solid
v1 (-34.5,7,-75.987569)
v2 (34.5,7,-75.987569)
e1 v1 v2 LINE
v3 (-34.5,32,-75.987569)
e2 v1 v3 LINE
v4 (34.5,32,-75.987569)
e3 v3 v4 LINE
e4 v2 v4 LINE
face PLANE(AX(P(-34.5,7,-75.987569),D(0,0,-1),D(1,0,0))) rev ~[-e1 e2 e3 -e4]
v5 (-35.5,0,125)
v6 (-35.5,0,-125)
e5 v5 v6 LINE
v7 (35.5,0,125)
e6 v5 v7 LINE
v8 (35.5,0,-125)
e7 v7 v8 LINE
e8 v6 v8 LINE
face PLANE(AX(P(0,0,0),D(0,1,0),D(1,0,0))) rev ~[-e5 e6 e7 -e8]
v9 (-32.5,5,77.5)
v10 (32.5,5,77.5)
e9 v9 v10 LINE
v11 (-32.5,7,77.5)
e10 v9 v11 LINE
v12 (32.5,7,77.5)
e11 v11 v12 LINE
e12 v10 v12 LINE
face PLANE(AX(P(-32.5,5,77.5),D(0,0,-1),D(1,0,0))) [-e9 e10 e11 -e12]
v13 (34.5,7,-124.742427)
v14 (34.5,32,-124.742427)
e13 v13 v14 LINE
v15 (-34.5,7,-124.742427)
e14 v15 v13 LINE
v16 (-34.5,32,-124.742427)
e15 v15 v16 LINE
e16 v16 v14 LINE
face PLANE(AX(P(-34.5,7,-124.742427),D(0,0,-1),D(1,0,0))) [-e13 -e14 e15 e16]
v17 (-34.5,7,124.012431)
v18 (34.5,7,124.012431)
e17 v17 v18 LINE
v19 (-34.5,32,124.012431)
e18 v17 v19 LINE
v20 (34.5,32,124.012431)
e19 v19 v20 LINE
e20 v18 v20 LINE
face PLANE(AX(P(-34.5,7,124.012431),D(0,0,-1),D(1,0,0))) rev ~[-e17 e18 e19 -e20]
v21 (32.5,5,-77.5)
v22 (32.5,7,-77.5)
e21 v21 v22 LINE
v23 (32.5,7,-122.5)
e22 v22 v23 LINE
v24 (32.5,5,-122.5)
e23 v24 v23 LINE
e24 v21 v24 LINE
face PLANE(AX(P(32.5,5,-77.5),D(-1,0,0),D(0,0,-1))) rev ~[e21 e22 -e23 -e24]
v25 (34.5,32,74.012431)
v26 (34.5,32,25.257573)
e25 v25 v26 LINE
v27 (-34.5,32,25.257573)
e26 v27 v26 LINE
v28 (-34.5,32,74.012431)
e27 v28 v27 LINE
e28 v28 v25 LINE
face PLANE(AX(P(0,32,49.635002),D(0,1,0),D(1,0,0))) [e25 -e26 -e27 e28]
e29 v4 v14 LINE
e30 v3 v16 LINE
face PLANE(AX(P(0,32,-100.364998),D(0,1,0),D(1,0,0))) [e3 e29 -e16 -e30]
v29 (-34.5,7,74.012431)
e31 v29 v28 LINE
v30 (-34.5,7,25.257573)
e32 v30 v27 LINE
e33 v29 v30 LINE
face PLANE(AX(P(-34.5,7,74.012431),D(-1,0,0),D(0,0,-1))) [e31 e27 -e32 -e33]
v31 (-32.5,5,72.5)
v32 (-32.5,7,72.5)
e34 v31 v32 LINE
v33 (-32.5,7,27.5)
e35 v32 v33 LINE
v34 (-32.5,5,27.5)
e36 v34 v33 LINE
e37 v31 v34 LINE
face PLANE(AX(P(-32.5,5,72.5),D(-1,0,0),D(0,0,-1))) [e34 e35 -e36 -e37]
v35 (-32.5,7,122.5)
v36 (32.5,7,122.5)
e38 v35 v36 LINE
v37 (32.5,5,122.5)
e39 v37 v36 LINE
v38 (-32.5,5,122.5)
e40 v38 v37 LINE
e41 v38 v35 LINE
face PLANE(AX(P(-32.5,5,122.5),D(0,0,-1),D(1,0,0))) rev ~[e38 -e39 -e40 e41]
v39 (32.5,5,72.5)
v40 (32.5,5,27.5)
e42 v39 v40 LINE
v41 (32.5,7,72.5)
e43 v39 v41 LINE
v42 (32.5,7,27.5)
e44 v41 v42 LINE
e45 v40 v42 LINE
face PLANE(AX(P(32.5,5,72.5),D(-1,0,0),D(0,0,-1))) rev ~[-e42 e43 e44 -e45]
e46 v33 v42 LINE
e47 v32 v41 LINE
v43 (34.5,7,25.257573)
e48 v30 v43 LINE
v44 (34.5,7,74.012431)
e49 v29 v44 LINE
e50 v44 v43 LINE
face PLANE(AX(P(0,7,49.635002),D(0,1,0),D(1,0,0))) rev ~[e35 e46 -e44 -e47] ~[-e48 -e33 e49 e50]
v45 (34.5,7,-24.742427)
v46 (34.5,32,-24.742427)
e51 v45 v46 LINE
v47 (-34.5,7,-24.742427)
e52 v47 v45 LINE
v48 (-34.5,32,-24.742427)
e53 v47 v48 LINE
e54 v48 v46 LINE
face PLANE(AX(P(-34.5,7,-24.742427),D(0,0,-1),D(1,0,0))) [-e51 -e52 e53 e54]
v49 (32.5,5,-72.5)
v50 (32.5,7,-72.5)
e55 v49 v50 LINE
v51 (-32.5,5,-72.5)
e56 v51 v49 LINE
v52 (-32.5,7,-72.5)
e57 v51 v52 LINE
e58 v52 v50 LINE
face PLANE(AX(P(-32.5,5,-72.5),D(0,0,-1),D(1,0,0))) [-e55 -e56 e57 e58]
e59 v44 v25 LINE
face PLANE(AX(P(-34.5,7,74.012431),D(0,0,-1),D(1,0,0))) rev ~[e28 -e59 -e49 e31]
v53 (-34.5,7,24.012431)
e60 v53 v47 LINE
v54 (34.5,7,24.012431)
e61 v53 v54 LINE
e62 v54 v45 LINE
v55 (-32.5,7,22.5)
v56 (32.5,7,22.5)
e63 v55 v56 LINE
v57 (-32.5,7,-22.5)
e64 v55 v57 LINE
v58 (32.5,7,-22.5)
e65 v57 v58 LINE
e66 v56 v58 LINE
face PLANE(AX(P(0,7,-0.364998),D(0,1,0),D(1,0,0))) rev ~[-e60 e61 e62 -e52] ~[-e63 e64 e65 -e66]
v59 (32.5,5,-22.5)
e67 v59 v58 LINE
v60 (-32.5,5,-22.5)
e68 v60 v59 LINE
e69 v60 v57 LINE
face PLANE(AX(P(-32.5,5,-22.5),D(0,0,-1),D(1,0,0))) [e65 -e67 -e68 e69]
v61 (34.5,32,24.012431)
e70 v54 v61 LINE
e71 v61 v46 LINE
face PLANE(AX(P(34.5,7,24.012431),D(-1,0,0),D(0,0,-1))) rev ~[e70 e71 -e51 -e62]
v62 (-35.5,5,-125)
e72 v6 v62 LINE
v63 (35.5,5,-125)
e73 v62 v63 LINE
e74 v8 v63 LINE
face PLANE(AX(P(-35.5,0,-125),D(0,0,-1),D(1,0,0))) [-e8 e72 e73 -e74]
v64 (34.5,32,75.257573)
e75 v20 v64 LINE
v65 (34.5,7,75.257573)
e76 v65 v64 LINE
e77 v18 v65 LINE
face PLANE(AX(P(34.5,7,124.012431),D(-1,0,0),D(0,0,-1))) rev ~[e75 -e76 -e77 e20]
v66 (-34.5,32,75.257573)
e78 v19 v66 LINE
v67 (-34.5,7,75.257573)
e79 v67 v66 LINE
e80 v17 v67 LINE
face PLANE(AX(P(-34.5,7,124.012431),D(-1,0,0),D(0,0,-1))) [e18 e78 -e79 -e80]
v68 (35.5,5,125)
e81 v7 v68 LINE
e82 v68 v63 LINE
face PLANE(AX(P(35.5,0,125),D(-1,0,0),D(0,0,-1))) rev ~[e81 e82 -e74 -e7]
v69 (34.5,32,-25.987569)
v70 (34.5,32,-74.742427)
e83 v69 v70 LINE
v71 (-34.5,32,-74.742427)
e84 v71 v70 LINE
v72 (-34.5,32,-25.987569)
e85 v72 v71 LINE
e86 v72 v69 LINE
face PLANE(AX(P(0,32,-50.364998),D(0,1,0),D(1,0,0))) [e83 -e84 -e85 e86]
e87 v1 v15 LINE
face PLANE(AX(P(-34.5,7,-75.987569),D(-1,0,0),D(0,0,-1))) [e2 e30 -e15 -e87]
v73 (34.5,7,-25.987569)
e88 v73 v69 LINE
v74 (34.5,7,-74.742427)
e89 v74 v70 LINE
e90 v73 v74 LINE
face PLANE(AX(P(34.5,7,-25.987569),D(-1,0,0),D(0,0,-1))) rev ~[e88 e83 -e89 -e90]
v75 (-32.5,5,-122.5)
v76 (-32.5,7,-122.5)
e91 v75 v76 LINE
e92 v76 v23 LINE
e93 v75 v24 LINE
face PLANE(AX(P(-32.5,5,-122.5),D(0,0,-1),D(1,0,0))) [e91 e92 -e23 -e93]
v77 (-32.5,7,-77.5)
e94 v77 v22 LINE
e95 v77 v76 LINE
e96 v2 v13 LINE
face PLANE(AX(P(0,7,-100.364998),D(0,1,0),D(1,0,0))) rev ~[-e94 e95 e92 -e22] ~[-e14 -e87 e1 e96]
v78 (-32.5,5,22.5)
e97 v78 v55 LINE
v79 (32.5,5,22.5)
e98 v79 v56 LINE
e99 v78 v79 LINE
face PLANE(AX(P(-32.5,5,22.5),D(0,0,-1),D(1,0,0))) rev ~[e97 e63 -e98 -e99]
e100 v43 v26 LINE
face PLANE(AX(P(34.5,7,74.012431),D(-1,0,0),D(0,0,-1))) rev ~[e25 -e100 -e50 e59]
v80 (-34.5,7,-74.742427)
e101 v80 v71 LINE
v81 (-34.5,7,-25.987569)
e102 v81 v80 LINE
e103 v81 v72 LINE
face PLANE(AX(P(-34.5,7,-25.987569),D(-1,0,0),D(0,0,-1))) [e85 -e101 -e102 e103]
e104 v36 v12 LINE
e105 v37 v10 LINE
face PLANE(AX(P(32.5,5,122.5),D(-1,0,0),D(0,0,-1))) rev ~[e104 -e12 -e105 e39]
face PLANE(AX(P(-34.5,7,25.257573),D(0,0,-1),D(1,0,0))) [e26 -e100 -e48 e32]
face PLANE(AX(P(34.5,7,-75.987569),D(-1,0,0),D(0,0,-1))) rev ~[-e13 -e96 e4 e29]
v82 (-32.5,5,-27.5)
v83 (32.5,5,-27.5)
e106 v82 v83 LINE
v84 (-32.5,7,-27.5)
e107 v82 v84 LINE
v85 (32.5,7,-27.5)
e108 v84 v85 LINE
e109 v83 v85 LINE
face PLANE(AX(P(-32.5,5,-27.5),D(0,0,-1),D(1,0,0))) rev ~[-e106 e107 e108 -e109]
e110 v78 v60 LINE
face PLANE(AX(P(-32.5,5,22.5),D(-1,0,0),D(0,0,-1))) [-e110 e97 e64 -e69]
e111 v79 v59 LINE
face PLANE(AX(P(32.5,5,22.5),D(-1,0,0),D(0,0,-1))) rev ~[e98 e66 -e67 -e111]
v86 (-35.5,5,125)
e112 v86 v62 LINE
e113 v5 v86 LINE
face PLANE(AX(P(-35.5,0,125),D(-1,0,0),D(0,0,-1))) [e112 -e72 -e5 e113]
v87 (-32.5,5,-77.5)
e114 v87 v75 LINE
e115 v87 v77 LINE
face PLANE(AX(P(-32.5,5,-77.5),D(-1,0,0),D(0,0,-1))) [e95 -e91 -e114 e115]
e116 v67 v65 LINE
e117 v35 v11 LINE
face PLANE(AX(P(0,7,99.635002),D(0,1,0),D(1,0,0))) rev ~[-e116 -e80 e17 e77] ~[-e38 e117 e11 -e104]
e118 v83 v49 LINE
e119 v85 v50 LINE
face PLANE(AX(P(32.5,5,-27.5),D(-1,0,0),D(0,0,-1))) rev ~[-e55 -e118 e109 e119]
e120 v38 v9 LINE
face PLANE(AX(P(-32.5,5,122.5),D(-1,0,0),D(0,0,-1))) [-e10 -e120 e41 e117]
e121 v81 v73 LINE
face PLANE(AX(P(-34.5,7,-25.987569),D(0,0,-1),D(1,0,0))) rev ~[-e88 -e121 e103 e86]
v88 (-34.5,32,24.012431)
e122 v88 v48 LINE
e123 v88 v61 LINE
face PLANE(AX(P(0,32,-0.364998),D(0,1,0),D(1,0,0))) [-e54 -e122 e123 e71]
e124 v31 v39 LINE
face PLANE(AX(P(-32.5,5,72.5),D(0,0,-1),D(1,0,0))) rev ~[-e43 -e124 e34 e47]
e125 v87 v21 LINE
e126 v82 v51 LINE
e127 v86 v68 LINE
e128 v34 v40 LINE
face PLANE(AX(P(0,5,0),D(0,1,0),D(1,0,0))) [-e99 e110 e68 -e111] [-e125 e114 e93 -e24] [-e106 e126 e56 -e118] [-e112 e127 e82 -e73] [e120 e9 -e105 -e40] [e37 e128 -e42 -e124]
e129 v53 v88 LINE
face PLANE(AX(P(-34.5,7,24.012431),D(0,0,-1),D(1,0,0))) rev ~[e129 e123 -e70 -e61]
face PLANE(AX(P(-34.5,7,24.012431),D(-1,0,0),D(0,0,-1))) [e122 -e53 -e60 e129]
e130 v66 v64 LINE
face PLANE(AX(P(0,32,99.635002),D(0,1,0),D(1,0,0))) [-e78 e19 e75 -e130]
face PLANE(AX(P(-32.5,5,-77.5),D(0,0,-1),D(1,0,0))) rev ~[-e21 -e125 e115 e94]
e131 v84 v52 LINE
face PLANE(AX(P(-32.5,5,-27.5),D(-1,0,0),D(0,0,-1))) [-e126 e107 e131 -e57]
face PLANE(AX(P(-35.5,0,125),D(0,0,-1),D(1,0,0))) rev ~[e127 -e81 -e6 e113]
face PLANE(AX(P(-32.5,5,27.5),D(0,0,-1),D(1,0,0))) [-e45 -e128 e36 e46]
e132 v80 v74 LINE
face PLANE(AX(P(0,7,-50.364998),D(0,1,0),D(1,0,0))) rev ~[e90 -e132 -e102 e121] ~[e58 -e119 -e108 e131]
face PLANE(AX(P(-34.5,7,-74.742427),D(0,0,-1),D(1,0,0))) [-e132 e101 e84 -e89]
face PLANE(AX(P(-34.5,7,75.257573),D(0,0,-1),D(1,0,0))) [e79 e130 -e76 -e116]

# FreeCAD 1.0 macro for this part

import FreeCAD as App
import Part
import Sketcher

V = App.Vector
Q = App.Units.Quantity


def add_polygon(sketch, points):
    """Adds a closed chain of lines whose ends are joined by coincident constraints."""
    first, n = sketch.GeometryCount, len(points)
    for a, b in zip(points, points[1:] + points[:1]):
        sketch.addGeometry(Part.LineSegment(App.Vector(*a, 0), App.Vector(*b, 0)), False)
    for i in range(n):
        sketch.addConstraint(Sketcher.Constraint("Coincident", first + i, 2, first + (i + 1) % n, 1))

doc = App.newDocument("Part")
body = doc.addObject("PartDesign::Body", "Body")

# Sketch on XZ plane
sketch1 = body.newObject("Sketcher::SketchObject", "Sketch")
sketch1.AttachmentSupport = (doc.getObject("XZ_Plane"), [""])
sketch1.MapMode = "FlatFace"
add_polygon(sketch1, [(-35.5, -125), (-35.5, 125), (35.5, 125), (35.5, -125)])  # lines 0-3
sketch1.addConstraint(Sketcher.Constraint("Vertical", 0))
sketch1.addConstraint(Sketcher.Constraint("Horizontal", 1))
sketch1.addConstraint(Sketcher.Constraint("Vertical", 2))
sketch1.addConstraint(Sketcher.Constraint("Horizontal", 3))
sketch1.addConstraint(Sketcher.Constraint("Symmetric", 0, 2, 2, 2, -1, 1))
sketch1.addConstraint(Sketcher.Constraint("DistanceX", 1, 1, 1, 2, Q("71 mm")))
sketch1.addConstraint(Sketcher.Constraint("DistanceY", 0, 1, 0, 2, Q("250 mm")))
pad1 = body.newObject("PartDesign::Pad", "Pad")
pad1.Profile = sketch1
pad1.Length = 5
pad1.Reversed = True

# Sketch on XZ plane
sketch2 = body.newObject("Sketcher::SketchObject", "Sketch001")
sketch2.AttachmentSupport = (doc.getObject("XZ_Plane"), [""])
sketch2.MapMode = "FlatFace"
sketch2.AttachmentOffset = App.Placement(V(0, 0, -5), App.Rotation())
add_polygon(sketch2, [(-32.5, 77.5), (-32.5, 122.5), (32.5, 122.5), (32.5, 77.5)])  # lines 0-3
sketch2.addConstraint(Sketcher.Constraint("Vertical", 0))
sketch2.addConstraint(Sketcher.Constraint("Horizontal", 1))
sketch2.addConstraint(Sketcher.Constraint("Vertical", 2))
sketch2.addConstraint(Sketcher.Constraint("Horizontal", 3))
sketch2.addConstraint(Sketcher.Constraint("DistanceX", 1, 1, 1, 2, Q("65 mm")))
sketch2.addConstraint(Sketcher.Constraint("DistanceY", 0, 1, 0, 2, Q("45 mm")))
sketch2.addConstraint(Sketcher.Constraint("DistanceX", 0, 2, -1, 1, Q("32.5 mm")))
sketch2.addConstraint(Sketcher.Constraint("DistanceY", -1, 1, 0, 2, Q("122.5 mm")))
pad2 = body.newObject("PartDesign::Pad", "Pad001")
pad2.Profile = sketch2
pad2.Length = 2
pad2.Reversed = True
doc.recompute()

linearpattern = body.newObject("PartDesign::LinearPattern", "LinearPattern")
linearpattern.Originals = [pad2]
linearpattern.Direction = (doc.getObject("Z_Axis"), [""])
linearpattern.Mode = "offset"
linearpattern.Offset = 50
linearpattern.Occurrences = 5
linearpattern.Reversed = True
body.Tip = linearpattern

# Sketch on XZ plane
sketch3 = body.newObject("Sketcher::SketchObject", "Sketch002")
sketch3.AttachmentSupport = (doc.getObject("XZ_Plane"), [""])
sketch3.MapMode = "FlatFace"
sketch3.AttachmentOffset = App.Placement(V(0, 0, -7), App.Rotation())
add_polygon(sketch3, [(-34.5, 75.257573), (-34.5, 124.012431), (34.5, 124.012431), (34.5, 75.257573)])  # lines 0-3
sketch3.addConstraint(Sketcher.Constraint("Vertical", 0))
sketch3.addConstraint(Sketcher.Constraint("Horizontal", 1))
sketch3.addConstraint(Sketcher.Constraint("Vertical", 2))
sketch3.addConstraint(Sketcher.Constraint("Horizontal", 3))
sketch3.addConstraint(Sketcher.Constraint("DistanceX", 1, 1, 1, 2, Q("69 mm")))
sketch3.addConstraint(Sketcher.Constraint("DistanceX", 0, 2, -1, 1, Q("34.5 mm")))
sketch3.addConstraint(Sketcher.Constraint("DistanceY", 0, 1, 0, 2, Q("48.754858 mm")))
sketch3.addConstraint(Sketcher.Constraint("DistanceY", -1, 1, 0, 2, Q("124.012431 mm")))
pad3 = body.newObject("PartDesign::Pad", "Pad002")
pad3.Profile = sketch3
pad3.Length = 25
pad3.Reversed = True
doc.recompute()

linearpattern2 = body.newObject("PartDesign::LinearPattern", "LinearPattern001")
linearpattern2.Originals = [pad3]
linearpattern2.Direction = (doc.getObject("Z_Axis"), [""])
linearpattern2.Mode = "offset"
linearpattern2.Offset = 50
linearpattern2.Occurrences = 5
linearpattern2.Reversed = True
body.Tip = linearpattern2

doc.recompute()
